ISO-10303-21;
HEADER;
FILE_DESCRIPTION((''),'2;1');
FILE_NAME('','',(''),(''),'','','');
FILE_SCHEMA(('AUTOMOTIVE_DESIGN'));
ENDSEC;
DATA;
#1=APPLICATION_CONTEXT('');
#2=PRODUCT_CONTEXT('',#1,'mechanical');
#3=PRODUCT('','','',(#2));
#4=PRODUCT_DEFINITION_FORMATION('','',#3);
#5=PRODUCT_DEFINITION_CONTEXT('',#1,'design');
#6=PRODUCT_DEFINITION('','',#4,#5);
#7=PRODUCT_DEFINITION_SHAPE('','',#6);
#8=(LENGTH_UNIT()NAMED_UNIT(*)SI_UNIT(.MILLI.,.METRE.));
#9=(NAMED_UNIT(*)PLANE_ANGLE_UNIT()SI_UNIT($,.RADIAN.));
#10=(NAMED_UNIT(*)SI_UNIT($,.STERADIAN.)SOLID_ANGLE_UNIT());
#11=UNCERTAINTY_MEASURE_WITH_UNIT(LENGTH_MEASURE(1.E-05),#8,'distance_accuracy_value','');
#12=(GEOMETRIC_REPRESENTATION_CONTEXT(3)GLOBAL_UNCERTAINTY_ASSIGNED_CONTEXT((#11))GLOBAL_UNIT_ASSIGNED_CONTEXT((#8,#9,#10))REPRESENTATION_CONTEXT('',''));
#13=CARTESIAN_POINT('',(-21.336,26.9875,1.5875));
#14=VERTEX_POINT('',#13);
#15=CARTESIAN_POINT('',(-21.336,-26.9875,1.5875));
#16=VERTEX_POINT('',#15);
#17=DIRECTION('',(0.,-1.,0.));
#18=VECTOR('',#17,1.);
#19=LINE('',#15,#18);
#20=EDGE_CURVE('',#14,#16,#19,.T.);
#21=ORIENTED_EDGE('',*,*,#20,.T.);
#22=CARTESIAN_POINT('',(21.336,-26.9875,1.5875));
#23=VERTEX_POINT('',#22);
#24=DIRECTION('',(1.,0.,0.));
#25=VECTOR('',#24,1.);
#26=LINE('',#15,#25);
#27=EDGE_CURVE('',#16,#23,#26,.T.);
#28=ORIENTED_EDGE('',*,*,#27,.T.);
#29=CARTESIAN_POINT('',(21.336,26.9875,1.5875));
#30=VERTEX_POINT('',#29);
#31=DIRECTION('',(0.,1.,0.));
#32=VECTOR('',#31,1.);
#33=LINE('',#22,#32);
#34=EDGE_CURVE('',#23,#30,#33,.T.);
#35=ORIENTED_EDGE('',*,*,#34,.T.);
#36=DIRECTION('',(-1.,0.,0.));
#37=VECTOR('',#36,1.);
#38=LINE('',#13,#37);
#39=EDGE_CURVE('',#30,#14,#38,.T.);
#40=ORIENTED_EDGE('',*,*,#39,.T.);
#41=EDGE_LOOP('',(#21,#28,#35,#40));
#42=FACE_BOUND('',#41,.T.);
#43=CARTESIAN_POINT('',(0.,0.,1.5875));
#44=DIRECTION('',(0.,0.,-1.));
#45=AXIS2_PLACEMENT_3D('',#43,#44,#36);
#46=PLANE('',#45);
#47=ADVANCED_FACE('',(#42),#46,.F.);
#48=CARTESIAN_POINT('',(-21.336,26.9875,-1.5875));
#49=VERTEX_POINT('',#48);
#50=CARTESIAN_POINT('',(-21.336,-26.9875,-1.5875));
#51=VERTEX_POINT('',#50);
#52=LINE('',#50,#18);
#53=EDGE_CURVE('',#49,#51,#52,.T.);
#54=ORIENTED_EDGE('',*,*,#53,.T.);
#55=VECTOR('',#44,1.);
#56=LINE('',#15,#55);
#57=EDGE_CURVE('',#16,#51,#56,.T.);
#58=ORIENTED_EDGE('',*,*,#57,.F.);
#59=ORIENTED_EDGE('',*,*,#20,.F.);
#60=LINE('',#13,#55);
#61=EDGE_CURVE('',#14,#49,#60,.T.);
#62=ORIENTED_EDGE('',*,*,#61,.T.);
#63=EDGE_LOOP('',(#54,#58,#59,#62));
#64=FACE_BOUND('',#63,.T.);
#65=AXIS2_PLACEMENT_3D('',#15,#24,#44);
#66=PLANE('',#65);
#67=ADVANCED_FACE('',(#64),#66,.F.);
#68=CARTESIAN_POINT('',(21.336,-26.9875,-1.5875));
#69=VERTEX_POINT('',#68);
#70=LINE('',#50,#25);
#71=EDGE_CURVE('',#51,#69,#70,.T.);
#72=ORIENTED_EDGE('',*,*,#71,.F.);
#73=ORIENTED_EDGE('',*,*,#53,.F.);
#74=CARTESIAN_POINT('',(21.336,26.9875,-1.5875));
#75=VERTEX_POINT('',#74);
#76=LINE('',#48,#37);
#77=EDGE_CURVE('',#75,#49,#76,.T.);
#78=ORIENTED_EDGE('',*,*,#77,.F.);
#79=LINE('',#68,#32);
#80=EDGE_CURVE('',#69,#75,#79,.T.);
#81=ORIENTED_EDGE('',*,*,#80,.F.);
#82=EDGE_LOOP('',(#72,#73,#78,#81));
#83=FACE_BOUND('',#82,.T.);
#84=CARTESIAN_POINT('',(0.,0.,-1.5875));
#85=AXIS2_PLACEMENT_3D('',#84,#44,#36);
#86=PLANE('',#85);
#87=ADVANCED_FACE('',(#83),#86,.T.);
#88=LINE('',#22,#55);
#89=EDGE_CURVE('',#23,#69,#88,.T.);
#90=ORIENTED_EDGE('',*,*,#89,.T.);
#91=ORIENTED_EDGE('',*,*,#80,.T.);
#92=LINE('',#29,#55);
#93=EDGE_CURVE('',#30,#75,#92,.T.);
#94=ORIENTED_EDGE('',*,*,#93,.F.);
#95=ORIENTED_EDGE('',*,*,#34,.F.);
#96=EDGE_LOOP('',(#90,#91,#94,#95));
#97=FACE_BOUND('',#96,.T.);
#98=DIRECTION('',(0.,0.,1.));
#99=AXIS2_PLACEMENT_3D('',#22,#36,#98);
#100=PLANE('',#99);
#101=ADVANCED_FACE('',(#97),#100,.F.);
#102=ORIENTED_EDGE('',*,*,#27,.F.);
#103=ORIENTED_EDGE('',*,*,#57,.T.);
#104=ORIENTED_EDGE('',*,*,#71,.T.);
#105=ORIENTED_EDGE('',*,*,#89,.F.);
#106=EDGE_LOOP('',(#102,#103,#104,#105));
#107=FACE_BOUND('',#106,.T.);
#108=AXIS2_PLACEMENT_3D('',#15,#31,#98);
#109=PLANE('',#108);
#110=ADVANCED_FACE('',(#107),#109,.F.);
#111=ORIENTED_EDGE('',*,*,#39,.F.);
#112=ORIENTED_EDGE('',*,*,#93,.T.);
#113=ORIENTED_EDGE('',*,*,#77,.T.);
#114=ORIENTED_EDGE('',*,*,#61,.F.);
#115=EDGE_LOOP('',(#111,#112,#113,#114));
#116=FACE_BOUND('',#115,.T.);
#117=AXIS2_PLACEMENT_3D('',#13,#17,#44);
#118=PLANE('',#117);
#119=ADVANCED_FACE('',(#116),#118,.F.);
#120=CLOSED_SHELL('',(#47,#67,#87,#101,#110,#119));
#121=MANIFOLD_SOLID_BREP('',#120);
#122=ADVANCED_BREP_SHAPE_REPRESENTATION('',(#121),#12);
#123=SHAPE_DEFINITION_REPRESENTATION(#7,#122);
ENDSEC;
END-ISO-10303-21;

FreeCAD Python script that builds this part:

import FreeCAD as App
import Part
import Sketcher
Q = App.Units.Quantity

doc = App.newDocument("Part")
params = doc.addObject("Spreadsheet::Sheet", "Params")
for row, (alias, value) in enumerate([
    ("sketch1_width", "1.68 in"),
    ("sketch1_height", "2.125 in"),
    ("pad1_length", "0.125 in"),
], start=1):
    params.set(f"A{row}", alias)
    params.set(f"B{row}", "=" + value)
    params.setAlias(f"B{row}", alias)

body = doc.addObject("PartDesign::Body", "Body")

sketch1 = doc.addObject("Sketcher::SketchObject", "Sketch")
body.addObject(sketch1)
sketch1.AttachmentSupport = (doc.XY_Plane, [""])
sketch1.MapMode = "FlatFace"
sketch1.addGeometry(Part.LineSegment(App.Vector(-21.336, 26.9875, 0), App.Vector(-21.336, -26.9875, 0)), False)
sketch1.addGeometry(Part.LineSegment(App.Vector(-21.336, -26.9875, 0), App.Vector(21.336, -26.9875, 0)), False)
sketch1.addGeometry(Part.LineSegment(App.Vector(21.336, -26.9875, 0), App.Vector(21.336, 26.9875, 0)), False)
sketch1.addGeometry(Part.LineSegment(App.Vector(21.336, 26.9875, 0), App.Vector(-21.336, 26.9875, 0)), False)
sketch1.addConstraint(Sketcher.Constraint("Coincident", 0, 2, 1, 1))
sketch1.addConstraint(Sketcher.Constraint("Coincident", 1, 2, 2, 1))
sketch1.addConstraint(Sketcher.Constraint("Coincident", 2, 2, 3, 1))
sketch1.addConstraint(Sketcher.Constraint("Coincident", 3, 2, 0, 1))
sketch1.addConstraint(Sketcher.Constraint("Vertical", 0))
sketch1.addConstraint(Sketcher.Constraint("Horizontal", 1))
sketch1.addConstraint(Sketcher.Constraint("Vertical", 2))
sketch1.addConstraint(Sketcher.Constraint("Horizontal", 3))
sketch1.addConstraint(Sketcher.Constraint("Symmetric", 0, 2, 2, 2, -1, 1))
sketch1.addConstraint(Sketcher.Constraint("DistanceX", 1, 1, 1, 2, Q("1.68 in")))
sketch1.addConstraint(Sketcher.Constraint("DistanceY", 0, 2, 0, 1, Q("2.125 in")))
sketch1.setExpression("Constraints[9]", "Params.sketch1_width")
sketch1.setExpression("Constraints[10]", "Params.sketch1_height")
pad1 = doc.addObject("PartDesign::Pad", "Pad")
body.addObject(pad1)
pad1.Profile = sketch1
pad1.setExpression("Length", "Params.pad1_length")
pad1.Midplane = True

doc.recompute()
